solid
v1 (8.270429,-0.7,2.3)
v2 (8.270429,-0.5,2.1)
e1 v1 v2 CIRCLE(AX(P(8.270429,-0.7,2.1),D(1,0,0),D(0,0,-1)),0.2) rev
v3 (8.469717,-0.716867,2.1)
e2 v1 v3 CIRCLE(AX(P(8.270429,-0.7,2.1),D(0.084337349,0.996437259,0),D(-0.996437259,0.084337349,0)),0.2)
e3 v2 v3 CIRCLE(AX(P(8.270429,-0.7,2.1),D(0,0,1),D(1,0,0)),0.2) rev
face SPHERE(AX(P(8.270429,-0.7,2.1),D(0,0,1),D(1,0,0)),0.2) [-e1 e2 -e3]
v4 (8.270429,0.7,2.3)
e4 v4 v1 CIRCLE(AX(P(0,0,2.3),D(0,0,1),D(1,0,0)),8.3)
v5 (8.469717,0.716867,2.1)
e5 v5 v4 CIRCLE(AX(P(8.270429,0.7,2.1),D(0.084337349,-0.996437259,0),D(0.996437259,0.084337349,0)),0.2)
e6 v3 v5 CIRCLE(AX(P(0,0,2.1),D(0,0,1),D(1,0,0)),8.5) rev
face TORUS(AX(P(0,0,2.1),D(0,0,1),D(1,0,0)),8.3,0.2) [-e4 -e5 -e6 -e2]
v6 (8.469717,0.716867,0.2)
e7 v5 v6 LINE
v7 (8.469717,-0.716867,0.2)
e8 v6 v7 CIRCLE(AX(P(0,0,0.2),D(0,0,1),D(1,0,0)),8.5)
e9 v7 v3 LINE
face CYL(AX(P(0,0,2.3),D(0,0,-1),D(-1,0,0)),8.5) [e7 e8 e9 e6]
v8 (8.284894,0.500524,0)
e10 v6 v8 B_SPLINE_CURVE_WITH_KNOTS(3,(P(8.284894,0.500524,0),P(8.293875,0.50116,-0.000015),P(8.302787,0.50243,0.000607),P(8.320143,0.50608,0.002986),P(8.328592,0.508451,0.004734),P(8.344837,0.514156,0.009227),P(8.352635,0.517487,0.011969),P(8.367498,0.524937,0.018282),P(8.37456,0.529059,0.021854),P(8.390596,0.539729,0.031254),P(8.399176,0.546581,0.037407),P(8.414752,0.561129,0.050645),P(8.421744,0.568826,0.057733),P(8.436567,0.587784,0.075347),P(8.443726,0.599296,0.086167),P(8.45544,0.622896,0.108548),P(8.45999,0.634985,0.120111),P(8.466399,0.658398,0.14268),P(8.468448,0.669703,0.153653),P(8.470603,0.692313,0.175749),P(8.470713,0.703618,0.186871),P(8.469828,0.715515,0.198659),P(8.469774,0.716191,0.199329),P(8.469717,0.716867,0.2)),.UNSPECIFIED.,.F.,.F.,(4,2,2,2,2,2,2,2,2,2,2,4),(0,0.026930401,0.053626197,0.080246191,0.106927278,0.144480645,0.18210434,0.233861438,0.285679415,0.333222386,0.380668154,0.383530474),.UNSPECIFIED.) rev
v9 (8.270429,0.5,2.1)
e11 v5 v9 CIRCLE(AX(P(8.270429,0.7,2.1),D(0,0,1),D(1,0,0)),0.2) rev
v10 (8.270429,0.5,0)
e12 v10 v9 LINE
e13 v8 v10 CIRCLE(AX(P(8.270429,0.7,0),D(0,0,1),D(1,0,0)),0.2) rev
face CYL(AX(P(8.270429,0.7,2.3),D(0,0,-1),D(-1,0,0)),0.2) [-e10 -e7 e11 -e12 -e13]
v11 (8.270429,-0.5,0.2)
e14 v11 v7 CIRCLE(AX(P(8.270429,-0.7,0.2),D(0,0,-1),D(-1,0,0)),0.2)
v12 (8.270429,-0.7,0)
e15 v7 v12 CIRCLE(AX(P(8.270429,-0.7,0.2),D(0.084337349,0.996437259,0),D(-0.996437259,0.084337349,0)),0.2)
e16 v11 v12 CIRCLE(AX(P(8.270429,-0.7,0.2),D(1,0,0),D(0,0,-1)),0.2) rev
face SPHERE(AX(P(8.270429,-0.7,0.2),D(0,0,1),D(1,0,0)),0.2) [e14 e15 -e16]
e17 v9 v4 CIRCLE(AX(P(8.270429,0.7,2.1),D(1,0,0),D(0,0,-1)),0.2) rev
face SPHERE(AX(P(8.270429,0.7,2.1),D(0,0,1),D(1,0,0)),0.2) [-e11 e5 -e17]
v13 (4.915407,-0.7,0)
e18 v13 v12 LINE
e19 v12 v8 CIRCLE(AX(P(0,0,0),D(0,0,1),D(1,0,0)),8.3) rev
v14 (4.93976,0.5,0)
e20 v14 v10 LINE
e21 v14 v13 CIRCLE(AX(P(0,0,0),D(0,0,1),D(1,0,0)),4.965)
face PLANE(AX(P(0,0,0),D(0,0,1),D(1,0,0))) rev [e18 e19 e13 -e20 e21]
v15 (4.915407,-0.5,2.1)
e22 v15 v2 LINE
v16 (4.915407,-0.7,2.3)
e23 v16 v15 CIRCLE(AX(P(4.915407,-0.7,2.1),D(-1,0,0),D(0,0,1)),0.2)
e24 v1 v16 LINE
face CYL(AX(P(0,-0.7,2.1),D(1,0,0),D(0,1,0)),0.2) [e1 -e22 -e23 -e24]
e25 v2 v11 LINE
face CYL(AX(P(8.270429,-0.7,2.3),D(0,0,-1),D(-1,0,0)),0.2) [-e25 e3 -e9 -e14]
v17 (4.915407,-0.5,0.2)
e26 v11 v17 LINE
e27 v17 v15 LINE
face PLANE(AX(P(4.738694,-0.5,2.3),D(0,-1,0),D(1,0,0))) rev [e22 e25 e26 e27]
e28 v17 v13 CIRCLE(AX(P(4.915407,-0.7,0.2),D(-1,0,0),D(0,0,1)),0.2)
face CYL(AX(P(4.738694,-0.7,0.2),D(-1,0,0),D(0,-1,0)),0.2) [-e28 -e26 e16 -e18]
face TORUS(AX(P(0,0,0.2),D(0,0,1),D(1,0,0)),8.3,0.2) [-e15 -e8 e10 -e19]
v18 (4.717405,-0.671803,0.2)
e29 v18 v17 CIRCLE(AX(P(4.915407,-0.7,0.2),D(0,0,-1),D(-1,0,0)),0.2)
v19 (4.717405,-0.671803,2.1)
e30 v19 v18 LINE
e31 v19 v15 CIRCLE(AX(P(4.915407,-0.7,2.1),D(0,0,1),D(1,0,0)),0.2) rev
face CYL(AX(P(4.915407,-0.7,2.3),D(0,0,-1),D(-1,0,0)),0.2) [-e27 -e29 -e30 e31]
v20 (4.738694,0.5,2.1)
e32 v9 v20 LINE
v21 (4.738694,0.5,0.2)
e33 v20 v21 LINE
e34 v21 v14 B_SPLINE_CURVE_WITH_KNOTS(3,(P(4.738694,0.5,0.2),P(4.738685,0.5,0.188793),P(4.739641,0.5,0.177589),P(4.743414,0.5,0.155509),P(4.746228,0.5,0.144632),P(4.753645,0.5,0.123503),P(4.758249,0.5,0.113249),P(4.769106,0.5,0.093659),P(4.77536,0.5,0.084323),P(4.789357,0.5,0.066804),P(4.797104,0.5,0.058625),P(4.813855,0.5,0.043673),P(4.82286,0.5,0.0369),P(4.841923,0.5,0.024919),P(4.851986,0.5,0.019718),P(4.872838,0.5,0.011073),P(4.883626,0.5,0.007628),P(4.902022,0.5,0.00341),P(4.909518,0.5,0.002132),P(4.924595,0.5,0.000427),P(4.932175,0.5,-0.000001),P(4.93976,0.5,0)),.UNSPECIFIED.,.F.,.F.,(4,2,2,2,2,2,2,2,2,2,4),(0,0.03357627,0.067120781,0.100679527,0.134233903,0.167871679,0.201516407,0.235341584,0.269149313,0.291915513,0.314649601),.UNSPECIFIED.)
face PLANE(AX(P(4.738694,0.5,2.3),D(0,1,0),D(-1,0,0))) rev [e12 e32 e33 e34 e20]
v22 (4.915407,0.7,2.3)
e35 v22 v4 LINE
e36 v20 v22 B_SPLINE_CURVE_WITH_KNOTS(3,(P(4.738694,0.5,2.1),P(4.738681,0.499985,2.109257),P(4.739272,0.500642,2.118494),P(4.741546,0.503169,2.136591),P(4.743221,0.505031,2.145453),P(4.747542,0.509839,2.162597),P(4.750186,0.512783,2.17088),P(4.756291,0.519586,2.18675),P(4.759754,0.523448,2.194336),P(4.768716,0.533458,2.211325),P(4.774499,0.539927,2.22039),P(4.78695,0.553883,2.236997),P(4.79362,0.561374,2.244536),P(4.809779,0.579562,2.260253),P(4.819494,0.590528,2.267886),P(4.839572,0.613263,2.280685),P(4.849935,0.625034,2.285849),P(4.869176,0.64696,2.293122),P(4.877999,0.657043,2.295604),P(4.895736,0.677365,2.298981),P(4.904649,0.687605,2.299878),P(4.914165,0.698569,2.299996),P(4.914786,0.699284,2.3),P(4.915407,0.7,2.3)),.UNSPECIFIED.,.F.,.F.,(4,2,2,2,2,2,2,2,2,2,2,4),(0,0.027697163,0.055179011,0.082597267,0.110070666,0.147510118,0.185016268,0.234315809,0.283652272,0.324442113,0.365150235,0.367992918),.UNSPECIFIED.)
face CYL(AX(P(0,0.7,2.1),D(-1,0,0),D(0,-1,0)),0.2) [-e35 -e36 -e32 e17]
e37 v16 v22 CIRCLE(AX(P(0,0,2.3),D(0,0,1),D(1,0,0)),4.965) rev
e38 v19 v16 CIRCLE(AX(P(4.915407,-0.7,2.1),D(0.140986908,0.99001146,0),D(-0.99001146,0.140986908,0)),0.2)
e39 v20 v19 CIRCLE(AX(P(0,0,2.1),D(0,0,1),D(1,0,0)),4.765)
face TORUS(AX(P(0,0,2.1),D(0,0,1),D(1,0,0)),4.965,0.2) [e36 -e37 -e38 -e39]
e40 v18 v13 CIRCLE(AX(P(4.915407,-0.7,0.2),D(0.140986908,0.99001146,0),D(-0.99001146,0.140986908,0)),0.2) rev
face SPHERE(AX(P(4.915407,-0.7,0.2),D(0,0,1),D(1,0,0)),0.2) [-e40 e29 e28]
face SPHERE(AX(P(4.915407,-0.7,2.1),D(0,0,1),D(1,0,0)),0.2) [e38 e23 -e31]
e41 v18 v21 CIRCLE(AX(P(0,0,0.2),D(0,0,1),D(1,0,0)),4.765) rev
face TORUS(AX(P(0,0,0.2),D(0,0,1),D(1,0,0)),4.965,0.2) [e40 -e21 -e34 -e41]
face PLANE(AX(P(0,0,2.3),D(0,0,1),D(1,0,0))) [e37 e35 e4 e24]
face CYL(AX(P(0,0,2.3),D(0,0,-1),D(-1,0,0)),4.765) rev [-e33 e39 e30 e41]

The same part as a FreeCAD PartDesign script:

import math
import FreeCAD as App
import Part
import Sketcher

V = App.Vector


def edges_at(feature, points):
    """Names of the edges that pass closest to the given points."""
    edges = feature.Shape.Edges
    near = lambda p: min(range(len(edges)), key=lambda i: edges[i].distToShape(Part.Vertex(*p))[0])
    return sorted({f"Edge{near(p) + 1}" for p in points})

doc = App.newDocument("Part")
body = doc.addObject("PartDesign::Body", "Body")

sketch1 = body.newObject("Sketcher::SketchObject", "Sketch")
sketch1.AttachmentSupport = (doc.getObject("XY_Plane"), [""])
sketch1.MapMode = "FlatFace"
sketch1.addGeometry(Part.LineSegment(V(4.738694, 0.5, 0), V(8.485281, 0.5, 0)), False)
sketch1.addGeometry(Part.ArcOfCircle(Part.Circle(V(0, 0, 0), V(0, 0, 1), 8.5), math.radians(3.372287), math.radians(356.627713)), False)
sketch1.addGeometry(Part.LineSegment(V(8.485281, -0.5, 0), V(4.738694, -0.5, 0)), False)
sketch1.addGeometry(Part.ArcOfCircle(Part.Circle(V(0, 0, 0), V(0, 0, 1), 4.765), math.radians(6.023237), math.radians(353.976763)), False)
sketch1.addConstraint(Sketcher.Constraint("Coincident", 0, 2, 1, 1))
sketch1.addConstraint(Sketcher.Constraint("Coincident", 1, 2, 2, 1))
sketch1.addConstraint(Sketcher.Constraint("Coincident", 2, 2, 3, 2))
sketch1.addConstraint(Sketcher.Constraint("Coincident", 3, 1, 0, 1))
sketch1.addConstraint(Sketcher.Constraint("Horizontal", 0))
sketch1.addConstraint(Sketcher.Constraint("Horizontal", 2))
sketch1.addConstraint(Sketcher.Constraint("Coincident", 1, 3, -1, 1))
sketch1.addConstraint(Sketcher.Constraint("Coincident", 3, 3, -1, 1))
sketch1.addConstraint(Sketcher.Constraint("Vertical", 0, 2, 1, 2))
sketch1.addConstraint(Sketcher.Constraint("Radius", 1, 8.5))
sketch1.addConstraint(Sketcher.Constraint("Radius", 3, 4.765))
sketch1.addConstraint(Sketcher.Constraint("DistanceY", 1, 2, 0, 2, 1.0))
pad1 = body.newObject("PartDesign::Pad", "Pad")
pad1.Profile = sketch1
pad1.Length = 2.3
doc.recompute()

fillet = body.newObject("PartDesign::Fillet", "Fillet")
fillet.Base = (pad1, edges_at(pad1, [
    (-8.5, 0, 2.3),
    (6.612, -0.5, 2.3),
    (-4.765, 0, 2.3),
    (6.612, -0.5, 0),
    (-8.5, 0, 0),
    (-4.765, 0, 0),
    (6.612, 0.5, 2.3),
    (4.739, -0.5, 1.15),
    (8.485, -0.5, 1.15),
    (8.485, 0.5, 1.15),
]))
fillet.Radius = 0.2

doc.recompute()
